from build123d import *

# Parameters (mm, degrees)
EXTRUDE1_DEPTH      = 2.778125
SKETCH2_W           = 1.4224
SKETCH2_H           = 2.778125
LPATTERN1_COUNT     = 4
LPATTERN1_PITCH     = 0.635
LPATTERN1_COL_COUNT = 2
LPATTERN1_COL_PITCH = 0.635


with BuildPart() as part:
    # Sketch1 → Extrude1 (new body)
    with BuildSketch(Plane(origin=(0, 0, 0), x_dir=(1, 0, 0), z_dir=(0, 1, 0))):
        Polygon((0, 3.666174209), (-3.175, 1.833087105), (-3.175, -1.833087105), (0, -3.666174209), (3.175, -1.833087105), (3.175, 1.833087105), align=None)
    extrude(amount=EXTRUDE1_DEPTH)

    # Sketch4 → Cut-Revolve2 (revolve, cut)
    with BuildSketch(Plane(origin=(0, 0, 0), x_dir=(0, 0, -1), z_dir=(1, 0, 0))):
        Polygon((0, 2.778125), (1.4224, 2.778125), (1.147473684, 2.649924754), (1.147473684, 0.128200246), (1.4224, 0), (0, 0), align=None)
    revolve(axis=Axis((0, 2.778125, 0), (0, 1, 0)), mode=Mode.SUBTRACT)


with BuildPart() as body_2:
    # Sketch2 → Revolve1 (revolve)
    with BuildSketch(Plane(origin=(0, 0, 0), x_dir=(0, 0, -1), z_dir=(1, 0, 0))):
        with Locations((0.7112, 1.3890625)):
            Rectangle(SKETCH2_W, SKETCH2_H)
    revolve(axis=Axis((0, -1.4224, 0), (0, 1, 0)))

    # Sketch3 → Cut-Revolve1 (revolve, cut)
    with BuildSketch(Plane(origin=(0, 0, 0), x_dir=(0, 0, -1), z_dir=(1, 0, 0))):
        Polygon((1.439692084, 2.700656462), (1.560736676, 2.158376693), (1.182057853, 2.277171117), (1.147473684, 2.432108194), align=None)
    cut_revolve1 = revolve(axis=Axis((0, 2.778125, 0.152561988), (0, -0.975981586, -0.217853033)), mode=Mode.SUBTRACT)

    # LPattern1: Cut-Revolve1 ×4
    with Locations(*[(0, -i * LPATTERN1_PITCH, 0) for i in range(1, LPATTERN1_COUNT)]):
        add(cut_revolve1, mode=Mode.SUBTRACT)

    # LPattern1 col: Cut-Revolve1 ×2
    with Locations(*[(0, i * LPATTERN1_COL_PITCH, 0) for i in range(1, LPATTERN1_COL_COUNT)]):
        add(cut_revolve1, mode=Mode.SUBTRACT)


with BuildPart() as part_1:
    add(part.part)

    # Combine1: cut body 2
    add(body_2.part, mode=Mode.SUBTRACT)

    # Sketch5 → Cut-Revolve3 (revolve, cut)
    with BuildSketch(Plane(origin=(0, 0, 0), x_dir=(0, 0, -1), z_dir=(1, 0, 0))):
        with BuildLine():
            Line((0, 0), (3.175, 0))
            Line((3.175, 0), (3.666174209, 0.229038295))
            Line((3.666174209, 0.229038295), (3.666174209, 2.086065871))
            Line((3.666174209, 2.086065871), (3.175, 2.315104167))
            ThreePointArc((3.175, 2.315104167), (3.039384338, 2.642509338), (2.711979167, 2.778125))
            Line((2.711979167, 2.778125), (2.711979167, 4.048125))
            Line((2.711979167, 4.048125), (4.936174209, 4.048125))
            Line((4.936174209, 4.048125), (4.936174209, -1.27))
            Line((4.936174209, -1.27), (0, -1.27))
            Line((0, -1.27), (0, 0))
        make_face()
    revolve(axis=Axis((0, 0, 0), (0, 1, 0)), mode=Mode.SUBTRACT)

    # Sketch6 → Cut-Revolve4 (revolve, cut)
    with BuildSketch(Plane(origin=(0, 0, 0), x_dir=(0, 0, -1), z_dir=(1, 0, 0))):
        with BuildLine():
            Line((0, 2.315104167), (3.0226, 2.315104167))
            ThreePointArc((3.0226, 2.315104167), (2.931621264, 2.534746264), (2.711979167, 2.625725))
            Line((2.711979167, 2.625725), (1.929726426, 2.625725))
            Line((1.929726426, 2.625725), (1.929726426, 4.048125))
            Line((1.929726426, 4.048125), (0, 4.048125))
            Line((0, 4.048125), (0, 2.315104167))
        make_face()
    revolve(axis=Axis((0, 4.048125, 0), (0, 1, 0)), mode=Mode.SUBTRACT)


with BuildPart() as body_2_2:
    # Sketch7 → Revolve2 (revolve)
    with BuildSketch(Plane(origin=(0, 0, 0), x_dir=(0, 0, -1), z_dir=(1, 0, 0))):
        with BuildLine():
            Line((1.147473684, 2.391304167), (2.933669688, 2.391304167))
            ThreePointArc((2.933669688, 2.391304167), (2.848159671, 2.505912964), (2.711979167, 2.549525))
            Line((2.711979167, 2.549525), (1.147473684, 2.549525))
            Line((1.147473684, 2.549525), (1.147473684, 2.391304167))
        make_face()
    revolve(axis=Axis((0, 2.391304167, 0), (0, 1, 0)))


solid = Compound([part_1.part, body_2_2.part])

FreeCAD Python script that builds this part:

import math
import FreeCAD as App
import Part
import Sketcher
from FreeCAD import Vector
Q = App.Units.Quantity


def add_polygon(sketch, points):
    """Adds a closed chain of lines whose ends are joined by coincident constraints."""
    first, n = sketch.GeometryCount, len(points)
    for a, b in zip(points, points[1:] + points[:1]):
        sketch.addGeometry(Part.LineSegment(App.Vector(*a, 0), App.Vector(*b, 0)), False)
    for i in range(n):
        sketch.addConstraint(Sketcher.Constraint("Coincident", first + i, 2, first + (i + 1) % n, 1))

doc = App.newDocument("Part")
params = doc.addObject("Spreadsheet::Sheet", "Params")
for row, (alias, value) in enumerate([
    ("pad1_length", "0.109375 in"),
    ("sketch2_width", "0.109375 in"),
    ("sketch2_height", "0.056 in"),
    ("groove_angle", "360 deg"),
    ("sketch3_width", "0.109375 in"),
    ("sketch3_height", "0.056 in"),
    ("revolution_angle", "360 deg"),
    ("sketch4_length", "0.015625 in"),
    ("groove2_angle", "360 deg"),
    ("linearpattern_pitch", "0.025 in"),
    ("linearpattern2_pitch", "0.025 in"),
    ("sketch5_width", "0.05 in"),
    ("sketch5_height", "0.125 in"),
    ("groove3_angle", "360 deg"),
    ("sketch6_width", "0.056 in"),
    ("sketch6_height", "0.119 in"),
    ("groove4_angle", "360 deg"),
    ("revolution2_angle", "360 deg"),
], start=1):
    params.set(f"A{row}", alias)
    params.set(f"B{row}", "=" + value)
    params.setAlias(f"B{row}", alias)

body = doc.addObject("PartDesign::Body", "Body")

sketch1 = body.newObject("Sketcher::SketchObject", "Sketch")
sketch1.AttachmentSupport = (doc.getObject("XZ_Plane"), [""])
sketch1.MapMode = "FlatFace"
add_polygon(sketch1, [(0, -3.7), (-3.2, -1.8), (-3.2, 1.8), (0, 3.7), (3.2, 1.8), (3.2, -1.8)])
sketch1.addConstraint(Sketcher.Constraint("Vertical", 1))
sketch1.addConstraint(Sketcher.Constraint("Vertical", 4))
sketch1.addConstraint(Sketcher.Constraint("Symmetric", 0, 2, 3, 2, -1, 1))
sketch1.addConstraint(Sketcher.Constraint("Symmetric", 2, 2, 5, 2, -1, 1))
sketch1.addConstraint(Sketcher.Constraint("PointOnObject", 2, 2, -2))
sketch1.addConstraint(Sketcher.Constraint("Parallel", 2, 5))
sketch1.addConstraint(Sketcher.Constraint("Horizontal", 1, 2, 3, 2))
sketch1.addConstraint(Sketcher.Constraint("Angle", 0, Q("150 deg")))
sketch1.addConstraint(Sketcher.Constraint("DistanceX", 1, 2, 3, 2, Q("0.25 in")))
sketch1.addConstraint(Sketcher.Constraint("DistanceY", 1, 1, 1, 2, Q("3.666174 mm")))
pad1 = body.newObject("PartDesign::Pad", "Pad")
pad1.Profile = sketch1
pad1.setExpression("Length", "Params.pad1_length")
pad1.Reversed = True

sketch2 = body.newObject("Sketcher::SketchObject", "Sketch001")
sketch2.AttachmentSupport = (doc.getObject("YZ_Plane"), [""])
sketch2.MapMode = "FlatFace"
add_polygon(sketch2, [(2.78, -1.42), (2.78, 0), (0, 0), (0, -1.42), (0.13, -1.15), (2.65, -1.15)])
sketch2.addConstraint(Sketcher.Constraint("Vertical", 0))
sketch2.addConstraint(Sketcher.Constraint("Horizontal", 1))
sketch2.addConstraint(Sketcher.Constraint("Vertical", 2))
sketch2.addConstraint(Sketcher.Constraint("Horizontal", 4))
sketch2.addConstraint(Sketcher.Constraint("Coincident", 1, 2, -1, 1))
sketch2.addConstraint(Sketcher.Constraint("Horizontal", 2, 2, 5, 2))
sketch2.addConstraint(Sketcher.Constraint("Equal", 3, 5))
sketch2.addConstraint(Sketcher.Constraint("Angle", 3, Q("65 deg")))
sketch2.addConstraint(Sketcher.Constraint("DistanceX", 1, 2, 1, 1, Q("0.109375 in")))
sketch2.addConstraint(Sketcher.Constraint("DistanceY", 0, 1, 0, 2, Q("0.056 in")))
sketch2.addConstraint(Sketcher.Constraint("DistanceX", -1, 1, 3, 2, Q("0.1282 mm")))
sketch2.setExpression("Constraints[14]", "Params.sketch2_width")
sketch2.setExpression("Constraints[15]", "Params.sketch2_height")
groove = body.newObject("PartDesign::Groove", "Groove")
groove.Profile = sketch2
groove.ReferenceAxis = (sketch2, ["H_Axis"])
groove.setExpression("Angle", "Params.groove_angle")
body2 = doc.addObject("PartDesign::Body", "Body001")

sketch3 = body2.newObject("Sketcher::SketchObject", "Sketch002")
sketch3.AttachmentSupport = (doc.getObject("YZ_Plane001"), [""])
sketch3.MapMode = "FlatFace"
add_polygon(sketch3, [(2.8, 0), (0, 0), (0, -1.4), (2.8, -1.4)])
sketch3.addConstraint(Sketcher.Constraint("Horizontal", 0))
sketch3.addConstraint(Sketcher.Constraint("Vertical", 1))
sketch3.addConstraint(Sketcher.Constraint("Horizontal", 2))
sketch3.addConstraint(Sketcher.Constraint("Vertical", 3))
sketch3.addConstraint(Sketcher.Constraint("Coincident", 0, 2, -1, 1))
sketch3.addConstraint(Sketcher.Constraint("DistanceX", 0, 2, 0, 1, Q("0.109375 in")))
sketch3.addConstraint(Sketcher.Constraint("DistanceY", 1, 2, 1, 1, Q("0.056 in")))
sketch3.setExpression("Constraints[9]", "Params.sketch3_width")
sketch3.setExpression("Constraints[10]", "Params.sketch3_height")
revolution = body2.newObject("PartDesign::Revolution", "Revolution")
revolution.Profile = sketch3
revolution.ReferenceAxis = (sketch3, ["H_Axis"])
revolution.setExpression("Angle", "Params.revolution_angle")

sketch4 = body2.newObject("Sketcher::SketchObject", "Sketch003")
sketch4.AttachmentSupport = (doc.getObject("YZ_Plane001"), [""])
sketch4.MapMode = "FlatFace"
add_polygon(sketch4, [(2.16, -1.56), (2.7, -1.44), (2.43, -1.15), (2.28, -1.18)])
sketch4.addGeometry(Part.LineSegment(Vector(2.37, 0.06, 0), Vector(1.82, -0.06, 0)), True)
sketch4.addConstraint(Sketcher.Constraint("Parallel", 0, 2))
sketch4.addConstraint(Sketcher.Constraint("Parallel", 2, 4))
sketch4.addConstraint(Sketcher.Constraint("Equal", 1, 3))
sketch4.addConstraint(Sketcher.Constraint("Equal", 0, 4))
sketch4.addConstraint(Sketcher.Constraint("Distance", 1, Q("0.015625 in")))
sketch4.addConstraint(Sketcher.Constraint("DistanceX", 2, 2, 1, 2, Q("0.0060999 in")))
sketch4.addConstraint(Sketcher.Constraint("DistanceX", 4, 2, 1, 2, Q("0.608601 mm")))
sketch4.addConstraint(Sketcher.Constraint("Distance", 2, Q("0.15875 mm")))
sketch4.addConstraint(Sketcher.Constraint("DistanceX", -1, 1, 1, 2, Q("2.432108 mm")))
sketch4.addConstraint(Sketcher.Constraint("DistanceX", 1, 2, 0, 2, Q("0.268548 mm")))
sketch4.addConstraint(Sketcher.Constraint("DistanceY", 2, 2, 4, 1, Q("1.24258 mm")))
sketch4.addConstraint(Sketcher.Constraint("DistanceY", 0, 2, -1, 1, Q("1.439692 mm")))
sketch4.setExpression("Constraints[8]", "Params.sketch4_length")
groove2 = body2.newObject("PartDesign::Groove", "Groove001")
groove2.Profile = sketch4
groove2.ReferenceAxis = (sketch4, ["Axis0"])
groove2.setExpression("Angle", "Params.groove2_angle")
doc.recompute()

linearpattern = body2.newObject("PartDesign::LinearPattern", "LinearPattern")
linearpattern.Originals = [groove2]
linearpattern.Direction = (doc.getObject("Y_Axis001"), [""])
linearpattern.Mode = "offset"
linearpattern.setExpression("Offset", "Params.linearpattern_pitch")
linearpattern.Occurrences = 4
linearpattern.Reversed = True
body2.Tip = linearpattern
doc.recompute()

linearpattern2 = body2.newObject("PartDesign::LinearPattern", "LinearPattern001")
linearpattern2.Originals = [groove2]
linearpattern2.Direction = (doc.getObject("Y_Axis001"), [""])
linearpattern2.Mode = "offset"
linearpattern2.setExpression("Offset", "Params.linearpattern2_pitch")
linearpattern2.Occurrences = 2
body2.Tip = linearpattern2
doc.recompute()

boolean = body.newObject("PartDesign::Boolean", "Boolean")
boolean.Type = "Cut"
boolean.addObjects([body2])

sketch5 = body.newObject("Sketcher::SketchObject", "Sketch004")
sketch5.AttachmentSupport = (doc.getObject("YZ_Plane"), [""])
sketch5.MapMode = "FlatFace"
sketch5.addGeometry(Part.LineSegment(Vector(0, -3.17, 0), Vector(0, 0, 0)), False)
sketch5.addGeometry(Part.LineSegment(Vector(0, 0, 0), Vector(-1.27, 0, 0)), False)
sketch5.addGeometry(Part.LineSegment(Vector(-1.27, 0, 0), Vector(-1.27, -4.94, 0)), False)
sketch5.addGeometry(Part.LineSegment(Vector(-1.27, -4.94, 0), Vector(4.05, -4.94, 0)), False)
sketch5.addGeometry(Part.LineSegment(Vector(4.05, -4.94, 0), Vector(4.05, -2.71, 0)), False)
sketch5.addGeometry(Part.LineSegment(Vector(4.05, -2.71, 0), Vector(2.78, -2.71, 0)), False)
sketch5.addGeometry(Part.ArcOfCircle(Part.Circle(Vector(2.32, -2.71, 0), Vector(0, 0, 1), 0.46), math.radians(-90), math.radians(0)), False)
sketch5.addGeometry(Part.LineSegment(Vector(2.32, -3.17, 0), Vector(2.09, -3.67, 0)), False)
sketch5.addGeometry(Part.LineSegment(Vector(2.09, -3.67, 0), Vector(0.23, -3.67, 0)), False)
sketch5.addGeometry(Part.LineSegment(Vector(0.23, -3.67, 0), Vector(0, -3.17, 0)), False)
sketch5.addConstraint(Sketcher.Constraint("Coincident", 0, 2, 1, 1))
sketch5.addConstraint(Sketcher.Constraint("Coincident", 1, 2, 2, 1))
sketch5.addConstraint(Sketcher.Constraint("Coincident", 2, 2, 3, 1))
sketch5.addConstraint(Sketcher.Constraint("Coincident", 3, 2, 4, 1))
sketch5.addConstraint(Sketcher.Constraint("Coincident", 4, 2, 5, 1))
sketch5.addConstraint(Sketcher.Constraint("Coincident", 5, 2, 6, 2))
sketch5.addConstraint(Sketcher.Constraint("Coincident", 6, 1, 7, 1))
sketch5.addConstraint(Sketcher.Constraint("Coincident", 7, 2, 8, 1))
sketch5.addConstraint(Sketcher.Constraint("Coincident", 8, 2, 9, 1))
sketch5.addConstraint(Sketcher.Constraint("Coincident", 9, 2, 0, 1))
sketch5.addConstraint(Sketcher.Constraint("Vertical", 0))
sketch5.addConstraint(Sketcher.Constraint("Horizontal", 1))
sketch5.addConstraint(Sketcher.Constraint("Vertical", 2))
sketch5.addConstraint(Sketcher.Constraint("Horizontal", 3))
sketch5.addConstraint(Sketcher.Constraint("Vertical", 4))
sketch5.addConstraint(Sketcher.Constraint("Horizontal", 5))
sketch5.addConstraint(Sketcher.Constraint("Horizontal", 8))
sketch5.addConstraint(Sketcher.Constraint("Coincident", 0, 2, -1, 1))
sketch5.addConstraint(Sketcher.Constraint("Horizontal", 6, 3, 4, 2))
sketch5.addConstraint(Sketcher.Constraint("Horizontal", 6, 1, 9, 2))
sketch5.addConstraint(Sketcher.Constraint("Equal", 1, 5))
sketch5.addConstraint(Sketcher.Constraint("Equal", 7, 9))
sketch5.addConstraint(Sketcher.Constraint("Angle", 7, Q("-115 deg")))
sketch5.addConstraint(Sketcher.Constraint("DistanceX", 1, 2, 1, 1, Q("0.05 in")))
sketch5.addConstraint(Sketcher.Constraint("DistanceY", 0, 1, 0, 2, Q("0.125 in")))
sketch5.addConstraint(Sketcher.Constraint("DistanceY", 3, 2, 7, 2, Q("0.05 in")))
sketch5.addConstraint(Sketcher.Constraint("DistanceX", -1, 1, 5, 2, Q("0.109375 in")))
sketch5.addConstraint(Sketcher.Constraint("Radius", 6, Q("0.463021 mm")))
sketch5.addConstraint(Sketcher.Constraint("Distance", 7, Q("0.541951 mm")))
sketch5.addConstraint(Sketcher.Constraint("DistanceX", 8, 2, 8, 1, Q("1.857028 mm")))
sketch5.setExpression("Constraints[23]", "Params.sketch5_width")
sketch5.setExpression("Constraints[24]", "Params.sketch5_height")
groove3 = body.newObject("PartDesign::Groove", "Groove002")
groove3.Profile = sketch5
groove3.ReferenceAxis = (sketch5, ["H_Axis"])
groove3.setExpression("Angle", "Params.groove3_angle")

sketch6 = body.newObject("Sketcher::SketchObject", "Sketch005")
sketch6.AttachmentSupport = (doc.getObject("YZ_Plane"), [""])
sketch6.MapMode = "FlatFace"
sketch6.addGeometry(Part.LineSegment(Vector(2.32, 0, 0), Vector(2.32, -3.02, 0)), False)
sketch6.addGeometry(Part.ArcOfCircle(Part.Circle(Vector(2.32, -2.71, 0), Vector(0, 0, 1), 0.31), math.radians(-90), math.radians(0)), False)
sketch6.addGeometry(Part.LineSegment(Vector(2.63, -2.71, 0), Vector(2.63, -1.93, 0)), False)
sketch6.addGeometry(Part.LineSegment(Vector(2.63, -1.93, 0), Vector(4.05, -1.93, 0)), False)
sketch6.addGeometry(Part.LineSegment(Vector(4.05, -1.93, 0), Vector(4.05, 0, 0)), False)
sketch6.addGeometry(Part.LineSegment(Vector(4.05, 0, 0), Vector(2.32, 0, 0)), False)
sketch6.addConstraint(Sketcher.Constraint("Coincident", 0, 2, 1, 1))
sketch6.addConstraint(Sketcher.Constraint("Tangent", 1, 2, 2, 1))
sketch6.addConstraint(Sketcher.Constraint("Coincident", 2, 2, 3, 1))
sketch6.addConstraint(Sketcher.Constraint("Coincident", 3, 2, 4, 1))
sketch6.addConstraint(Sketcher.Constraint("Coincident", 4, 2, 5, 1))
sketch6.addConstraint(Sketcher.Constraint("Coincident", 5, 2, 0, 1))
sketch6.addConstraint(Sketcher.Constraint("Vertical", 0))
sketch6.addConstraint(Sketcher.Constraint("Vertical", 2))
sketch6.addConstraint(Sketcher.Constraint("Horizontal", 3))
sketch6.addConstraint(Sketcher.Constraint("Vertical", 4))
sketch6.addConstraint(Sketcher.Constraint("Horizontal", 5))
sketch6.addConstraint(Sketcher.Constraint("PointOnObject", 4, 2, -1))
sketch6.addConstraint(Sketcher.Constraint("Vertical", 1, 3, 0, 2))
sketch6.addConstraint(Sketcher.Constraint("DistanceX", 3, 1, 3, 2, Q("0.056 in")))
sketch6.addConstraint(Sketcher.Constraint("DistanceY", 0, 2, 0, 1, Q("0.119 in")))
sketch6.addConstraint(Sketcher.Constraint("Radius", 1, Q("0.310621 mm")))
sketch6.addConstraint(Sketcher.Constraint("DistanceY", 2, 1, 2, 2, Q("0.782253 mm")))
sketch6.addConstraint(Sketcher.Constraint("DistanceX", -1, 1, 1, 3, Q("2.315104 mm")))
sketch6.setExpression("Constraints[13]", "Params.sketch6_width")
sketch6.setExpression("Constraints[14]", "Params.sketch6_height")
groove4 = body.newObject("PartDesign::Groove", "Groove003")
groove4.Profile = sketch6
groove4.ReferenceAxis = (sketch6, ["H_Axis"])
groove4.setExpression("Angle", "Params.groove4_angle")
body3 = doc.addObject("PartDesign::Body", "Body002")

sketch7 = body3.newObject("Sketcher::SketchObject", "Sketch006")
sketch7.AttachmentSupport = (doc.getObject("YZ_Plane002"), [""])
sketch7.MapMode = "FlatFace"
sketch7.addGeometry(Part.LineSegment(Vector(2.39, -1.15, 0), Vector(2.39, -2.93, 0)), False)
sketch7.addGeometry(Part.ArcOfCircle(Part.Circle(Vector(2.32, -2.71, 0), Vector(0, 0, 1), 0.23), math.radians(-71), math.radians(0)), False)
sketch7.addGeometry(Part.LineSegment(Vector(2.55, -2.71, 0), Vector(2.55, -1.15, 0)), False)
sketch7.addGeometry(Part.LineSegment(Vector(2.55, -1.15, 0), Vector(2.39, -1.15, 0)), False)
sketch7.addConstraint(Sketcher.Constraint("Coincident", 0, 2, 1, 1))
sketch7.addConstraint(Sketcher.Constraint("Tangent", 1, 2, 2, 1))
sketch7.addConstraint(Sketcher.Constraint("Coincident", 2, 2, 3, 1))
sketch7.addConstraint(Sketcher.Constraint("Coincident", 3, 2, 0, 1))
sketch7.addConstraint(Sketcher.Constraint("Vertical", 0))
sketch7.addConstraint(Sketcher.Constraint("Vertical", 2))
sketch7.addConstraint(Sketcher.Constraint("Horizontal", 3))
sketch7.addConstraint(Sketcher.Constraint("Radius", 1, Q("0.234421 mm")))
sketch7.addConstraint(Sketcher.Constraint("DistanceX", 1, 3, 0, 2, Q("0.003 in")))
sketch7.addConstraint(Sketcher.Constraint("DistanceY", 0, 2, 0, 1, Q("1.786196 mm")))
sketch7.addConstraint(Sketcher.Constraint("DistanceY", 1, 3, -1, 1, Q("2.711979 mm")))
sketch7.addConstraint(Sketcher.Constraint("DistanceX", -1, 1, 1, 3, Q("2.315104 mm")))
revolution2 = body3.newObject("PartDesign::Revolution", "Revolution001")
revolution2.Profile = sketch7
revolution2.ReferenceAxis = (sketch7, ["H_Axis"])
revolution2.setExpression("Angle", "Params.revolution2_angle")

doc.recompute()
